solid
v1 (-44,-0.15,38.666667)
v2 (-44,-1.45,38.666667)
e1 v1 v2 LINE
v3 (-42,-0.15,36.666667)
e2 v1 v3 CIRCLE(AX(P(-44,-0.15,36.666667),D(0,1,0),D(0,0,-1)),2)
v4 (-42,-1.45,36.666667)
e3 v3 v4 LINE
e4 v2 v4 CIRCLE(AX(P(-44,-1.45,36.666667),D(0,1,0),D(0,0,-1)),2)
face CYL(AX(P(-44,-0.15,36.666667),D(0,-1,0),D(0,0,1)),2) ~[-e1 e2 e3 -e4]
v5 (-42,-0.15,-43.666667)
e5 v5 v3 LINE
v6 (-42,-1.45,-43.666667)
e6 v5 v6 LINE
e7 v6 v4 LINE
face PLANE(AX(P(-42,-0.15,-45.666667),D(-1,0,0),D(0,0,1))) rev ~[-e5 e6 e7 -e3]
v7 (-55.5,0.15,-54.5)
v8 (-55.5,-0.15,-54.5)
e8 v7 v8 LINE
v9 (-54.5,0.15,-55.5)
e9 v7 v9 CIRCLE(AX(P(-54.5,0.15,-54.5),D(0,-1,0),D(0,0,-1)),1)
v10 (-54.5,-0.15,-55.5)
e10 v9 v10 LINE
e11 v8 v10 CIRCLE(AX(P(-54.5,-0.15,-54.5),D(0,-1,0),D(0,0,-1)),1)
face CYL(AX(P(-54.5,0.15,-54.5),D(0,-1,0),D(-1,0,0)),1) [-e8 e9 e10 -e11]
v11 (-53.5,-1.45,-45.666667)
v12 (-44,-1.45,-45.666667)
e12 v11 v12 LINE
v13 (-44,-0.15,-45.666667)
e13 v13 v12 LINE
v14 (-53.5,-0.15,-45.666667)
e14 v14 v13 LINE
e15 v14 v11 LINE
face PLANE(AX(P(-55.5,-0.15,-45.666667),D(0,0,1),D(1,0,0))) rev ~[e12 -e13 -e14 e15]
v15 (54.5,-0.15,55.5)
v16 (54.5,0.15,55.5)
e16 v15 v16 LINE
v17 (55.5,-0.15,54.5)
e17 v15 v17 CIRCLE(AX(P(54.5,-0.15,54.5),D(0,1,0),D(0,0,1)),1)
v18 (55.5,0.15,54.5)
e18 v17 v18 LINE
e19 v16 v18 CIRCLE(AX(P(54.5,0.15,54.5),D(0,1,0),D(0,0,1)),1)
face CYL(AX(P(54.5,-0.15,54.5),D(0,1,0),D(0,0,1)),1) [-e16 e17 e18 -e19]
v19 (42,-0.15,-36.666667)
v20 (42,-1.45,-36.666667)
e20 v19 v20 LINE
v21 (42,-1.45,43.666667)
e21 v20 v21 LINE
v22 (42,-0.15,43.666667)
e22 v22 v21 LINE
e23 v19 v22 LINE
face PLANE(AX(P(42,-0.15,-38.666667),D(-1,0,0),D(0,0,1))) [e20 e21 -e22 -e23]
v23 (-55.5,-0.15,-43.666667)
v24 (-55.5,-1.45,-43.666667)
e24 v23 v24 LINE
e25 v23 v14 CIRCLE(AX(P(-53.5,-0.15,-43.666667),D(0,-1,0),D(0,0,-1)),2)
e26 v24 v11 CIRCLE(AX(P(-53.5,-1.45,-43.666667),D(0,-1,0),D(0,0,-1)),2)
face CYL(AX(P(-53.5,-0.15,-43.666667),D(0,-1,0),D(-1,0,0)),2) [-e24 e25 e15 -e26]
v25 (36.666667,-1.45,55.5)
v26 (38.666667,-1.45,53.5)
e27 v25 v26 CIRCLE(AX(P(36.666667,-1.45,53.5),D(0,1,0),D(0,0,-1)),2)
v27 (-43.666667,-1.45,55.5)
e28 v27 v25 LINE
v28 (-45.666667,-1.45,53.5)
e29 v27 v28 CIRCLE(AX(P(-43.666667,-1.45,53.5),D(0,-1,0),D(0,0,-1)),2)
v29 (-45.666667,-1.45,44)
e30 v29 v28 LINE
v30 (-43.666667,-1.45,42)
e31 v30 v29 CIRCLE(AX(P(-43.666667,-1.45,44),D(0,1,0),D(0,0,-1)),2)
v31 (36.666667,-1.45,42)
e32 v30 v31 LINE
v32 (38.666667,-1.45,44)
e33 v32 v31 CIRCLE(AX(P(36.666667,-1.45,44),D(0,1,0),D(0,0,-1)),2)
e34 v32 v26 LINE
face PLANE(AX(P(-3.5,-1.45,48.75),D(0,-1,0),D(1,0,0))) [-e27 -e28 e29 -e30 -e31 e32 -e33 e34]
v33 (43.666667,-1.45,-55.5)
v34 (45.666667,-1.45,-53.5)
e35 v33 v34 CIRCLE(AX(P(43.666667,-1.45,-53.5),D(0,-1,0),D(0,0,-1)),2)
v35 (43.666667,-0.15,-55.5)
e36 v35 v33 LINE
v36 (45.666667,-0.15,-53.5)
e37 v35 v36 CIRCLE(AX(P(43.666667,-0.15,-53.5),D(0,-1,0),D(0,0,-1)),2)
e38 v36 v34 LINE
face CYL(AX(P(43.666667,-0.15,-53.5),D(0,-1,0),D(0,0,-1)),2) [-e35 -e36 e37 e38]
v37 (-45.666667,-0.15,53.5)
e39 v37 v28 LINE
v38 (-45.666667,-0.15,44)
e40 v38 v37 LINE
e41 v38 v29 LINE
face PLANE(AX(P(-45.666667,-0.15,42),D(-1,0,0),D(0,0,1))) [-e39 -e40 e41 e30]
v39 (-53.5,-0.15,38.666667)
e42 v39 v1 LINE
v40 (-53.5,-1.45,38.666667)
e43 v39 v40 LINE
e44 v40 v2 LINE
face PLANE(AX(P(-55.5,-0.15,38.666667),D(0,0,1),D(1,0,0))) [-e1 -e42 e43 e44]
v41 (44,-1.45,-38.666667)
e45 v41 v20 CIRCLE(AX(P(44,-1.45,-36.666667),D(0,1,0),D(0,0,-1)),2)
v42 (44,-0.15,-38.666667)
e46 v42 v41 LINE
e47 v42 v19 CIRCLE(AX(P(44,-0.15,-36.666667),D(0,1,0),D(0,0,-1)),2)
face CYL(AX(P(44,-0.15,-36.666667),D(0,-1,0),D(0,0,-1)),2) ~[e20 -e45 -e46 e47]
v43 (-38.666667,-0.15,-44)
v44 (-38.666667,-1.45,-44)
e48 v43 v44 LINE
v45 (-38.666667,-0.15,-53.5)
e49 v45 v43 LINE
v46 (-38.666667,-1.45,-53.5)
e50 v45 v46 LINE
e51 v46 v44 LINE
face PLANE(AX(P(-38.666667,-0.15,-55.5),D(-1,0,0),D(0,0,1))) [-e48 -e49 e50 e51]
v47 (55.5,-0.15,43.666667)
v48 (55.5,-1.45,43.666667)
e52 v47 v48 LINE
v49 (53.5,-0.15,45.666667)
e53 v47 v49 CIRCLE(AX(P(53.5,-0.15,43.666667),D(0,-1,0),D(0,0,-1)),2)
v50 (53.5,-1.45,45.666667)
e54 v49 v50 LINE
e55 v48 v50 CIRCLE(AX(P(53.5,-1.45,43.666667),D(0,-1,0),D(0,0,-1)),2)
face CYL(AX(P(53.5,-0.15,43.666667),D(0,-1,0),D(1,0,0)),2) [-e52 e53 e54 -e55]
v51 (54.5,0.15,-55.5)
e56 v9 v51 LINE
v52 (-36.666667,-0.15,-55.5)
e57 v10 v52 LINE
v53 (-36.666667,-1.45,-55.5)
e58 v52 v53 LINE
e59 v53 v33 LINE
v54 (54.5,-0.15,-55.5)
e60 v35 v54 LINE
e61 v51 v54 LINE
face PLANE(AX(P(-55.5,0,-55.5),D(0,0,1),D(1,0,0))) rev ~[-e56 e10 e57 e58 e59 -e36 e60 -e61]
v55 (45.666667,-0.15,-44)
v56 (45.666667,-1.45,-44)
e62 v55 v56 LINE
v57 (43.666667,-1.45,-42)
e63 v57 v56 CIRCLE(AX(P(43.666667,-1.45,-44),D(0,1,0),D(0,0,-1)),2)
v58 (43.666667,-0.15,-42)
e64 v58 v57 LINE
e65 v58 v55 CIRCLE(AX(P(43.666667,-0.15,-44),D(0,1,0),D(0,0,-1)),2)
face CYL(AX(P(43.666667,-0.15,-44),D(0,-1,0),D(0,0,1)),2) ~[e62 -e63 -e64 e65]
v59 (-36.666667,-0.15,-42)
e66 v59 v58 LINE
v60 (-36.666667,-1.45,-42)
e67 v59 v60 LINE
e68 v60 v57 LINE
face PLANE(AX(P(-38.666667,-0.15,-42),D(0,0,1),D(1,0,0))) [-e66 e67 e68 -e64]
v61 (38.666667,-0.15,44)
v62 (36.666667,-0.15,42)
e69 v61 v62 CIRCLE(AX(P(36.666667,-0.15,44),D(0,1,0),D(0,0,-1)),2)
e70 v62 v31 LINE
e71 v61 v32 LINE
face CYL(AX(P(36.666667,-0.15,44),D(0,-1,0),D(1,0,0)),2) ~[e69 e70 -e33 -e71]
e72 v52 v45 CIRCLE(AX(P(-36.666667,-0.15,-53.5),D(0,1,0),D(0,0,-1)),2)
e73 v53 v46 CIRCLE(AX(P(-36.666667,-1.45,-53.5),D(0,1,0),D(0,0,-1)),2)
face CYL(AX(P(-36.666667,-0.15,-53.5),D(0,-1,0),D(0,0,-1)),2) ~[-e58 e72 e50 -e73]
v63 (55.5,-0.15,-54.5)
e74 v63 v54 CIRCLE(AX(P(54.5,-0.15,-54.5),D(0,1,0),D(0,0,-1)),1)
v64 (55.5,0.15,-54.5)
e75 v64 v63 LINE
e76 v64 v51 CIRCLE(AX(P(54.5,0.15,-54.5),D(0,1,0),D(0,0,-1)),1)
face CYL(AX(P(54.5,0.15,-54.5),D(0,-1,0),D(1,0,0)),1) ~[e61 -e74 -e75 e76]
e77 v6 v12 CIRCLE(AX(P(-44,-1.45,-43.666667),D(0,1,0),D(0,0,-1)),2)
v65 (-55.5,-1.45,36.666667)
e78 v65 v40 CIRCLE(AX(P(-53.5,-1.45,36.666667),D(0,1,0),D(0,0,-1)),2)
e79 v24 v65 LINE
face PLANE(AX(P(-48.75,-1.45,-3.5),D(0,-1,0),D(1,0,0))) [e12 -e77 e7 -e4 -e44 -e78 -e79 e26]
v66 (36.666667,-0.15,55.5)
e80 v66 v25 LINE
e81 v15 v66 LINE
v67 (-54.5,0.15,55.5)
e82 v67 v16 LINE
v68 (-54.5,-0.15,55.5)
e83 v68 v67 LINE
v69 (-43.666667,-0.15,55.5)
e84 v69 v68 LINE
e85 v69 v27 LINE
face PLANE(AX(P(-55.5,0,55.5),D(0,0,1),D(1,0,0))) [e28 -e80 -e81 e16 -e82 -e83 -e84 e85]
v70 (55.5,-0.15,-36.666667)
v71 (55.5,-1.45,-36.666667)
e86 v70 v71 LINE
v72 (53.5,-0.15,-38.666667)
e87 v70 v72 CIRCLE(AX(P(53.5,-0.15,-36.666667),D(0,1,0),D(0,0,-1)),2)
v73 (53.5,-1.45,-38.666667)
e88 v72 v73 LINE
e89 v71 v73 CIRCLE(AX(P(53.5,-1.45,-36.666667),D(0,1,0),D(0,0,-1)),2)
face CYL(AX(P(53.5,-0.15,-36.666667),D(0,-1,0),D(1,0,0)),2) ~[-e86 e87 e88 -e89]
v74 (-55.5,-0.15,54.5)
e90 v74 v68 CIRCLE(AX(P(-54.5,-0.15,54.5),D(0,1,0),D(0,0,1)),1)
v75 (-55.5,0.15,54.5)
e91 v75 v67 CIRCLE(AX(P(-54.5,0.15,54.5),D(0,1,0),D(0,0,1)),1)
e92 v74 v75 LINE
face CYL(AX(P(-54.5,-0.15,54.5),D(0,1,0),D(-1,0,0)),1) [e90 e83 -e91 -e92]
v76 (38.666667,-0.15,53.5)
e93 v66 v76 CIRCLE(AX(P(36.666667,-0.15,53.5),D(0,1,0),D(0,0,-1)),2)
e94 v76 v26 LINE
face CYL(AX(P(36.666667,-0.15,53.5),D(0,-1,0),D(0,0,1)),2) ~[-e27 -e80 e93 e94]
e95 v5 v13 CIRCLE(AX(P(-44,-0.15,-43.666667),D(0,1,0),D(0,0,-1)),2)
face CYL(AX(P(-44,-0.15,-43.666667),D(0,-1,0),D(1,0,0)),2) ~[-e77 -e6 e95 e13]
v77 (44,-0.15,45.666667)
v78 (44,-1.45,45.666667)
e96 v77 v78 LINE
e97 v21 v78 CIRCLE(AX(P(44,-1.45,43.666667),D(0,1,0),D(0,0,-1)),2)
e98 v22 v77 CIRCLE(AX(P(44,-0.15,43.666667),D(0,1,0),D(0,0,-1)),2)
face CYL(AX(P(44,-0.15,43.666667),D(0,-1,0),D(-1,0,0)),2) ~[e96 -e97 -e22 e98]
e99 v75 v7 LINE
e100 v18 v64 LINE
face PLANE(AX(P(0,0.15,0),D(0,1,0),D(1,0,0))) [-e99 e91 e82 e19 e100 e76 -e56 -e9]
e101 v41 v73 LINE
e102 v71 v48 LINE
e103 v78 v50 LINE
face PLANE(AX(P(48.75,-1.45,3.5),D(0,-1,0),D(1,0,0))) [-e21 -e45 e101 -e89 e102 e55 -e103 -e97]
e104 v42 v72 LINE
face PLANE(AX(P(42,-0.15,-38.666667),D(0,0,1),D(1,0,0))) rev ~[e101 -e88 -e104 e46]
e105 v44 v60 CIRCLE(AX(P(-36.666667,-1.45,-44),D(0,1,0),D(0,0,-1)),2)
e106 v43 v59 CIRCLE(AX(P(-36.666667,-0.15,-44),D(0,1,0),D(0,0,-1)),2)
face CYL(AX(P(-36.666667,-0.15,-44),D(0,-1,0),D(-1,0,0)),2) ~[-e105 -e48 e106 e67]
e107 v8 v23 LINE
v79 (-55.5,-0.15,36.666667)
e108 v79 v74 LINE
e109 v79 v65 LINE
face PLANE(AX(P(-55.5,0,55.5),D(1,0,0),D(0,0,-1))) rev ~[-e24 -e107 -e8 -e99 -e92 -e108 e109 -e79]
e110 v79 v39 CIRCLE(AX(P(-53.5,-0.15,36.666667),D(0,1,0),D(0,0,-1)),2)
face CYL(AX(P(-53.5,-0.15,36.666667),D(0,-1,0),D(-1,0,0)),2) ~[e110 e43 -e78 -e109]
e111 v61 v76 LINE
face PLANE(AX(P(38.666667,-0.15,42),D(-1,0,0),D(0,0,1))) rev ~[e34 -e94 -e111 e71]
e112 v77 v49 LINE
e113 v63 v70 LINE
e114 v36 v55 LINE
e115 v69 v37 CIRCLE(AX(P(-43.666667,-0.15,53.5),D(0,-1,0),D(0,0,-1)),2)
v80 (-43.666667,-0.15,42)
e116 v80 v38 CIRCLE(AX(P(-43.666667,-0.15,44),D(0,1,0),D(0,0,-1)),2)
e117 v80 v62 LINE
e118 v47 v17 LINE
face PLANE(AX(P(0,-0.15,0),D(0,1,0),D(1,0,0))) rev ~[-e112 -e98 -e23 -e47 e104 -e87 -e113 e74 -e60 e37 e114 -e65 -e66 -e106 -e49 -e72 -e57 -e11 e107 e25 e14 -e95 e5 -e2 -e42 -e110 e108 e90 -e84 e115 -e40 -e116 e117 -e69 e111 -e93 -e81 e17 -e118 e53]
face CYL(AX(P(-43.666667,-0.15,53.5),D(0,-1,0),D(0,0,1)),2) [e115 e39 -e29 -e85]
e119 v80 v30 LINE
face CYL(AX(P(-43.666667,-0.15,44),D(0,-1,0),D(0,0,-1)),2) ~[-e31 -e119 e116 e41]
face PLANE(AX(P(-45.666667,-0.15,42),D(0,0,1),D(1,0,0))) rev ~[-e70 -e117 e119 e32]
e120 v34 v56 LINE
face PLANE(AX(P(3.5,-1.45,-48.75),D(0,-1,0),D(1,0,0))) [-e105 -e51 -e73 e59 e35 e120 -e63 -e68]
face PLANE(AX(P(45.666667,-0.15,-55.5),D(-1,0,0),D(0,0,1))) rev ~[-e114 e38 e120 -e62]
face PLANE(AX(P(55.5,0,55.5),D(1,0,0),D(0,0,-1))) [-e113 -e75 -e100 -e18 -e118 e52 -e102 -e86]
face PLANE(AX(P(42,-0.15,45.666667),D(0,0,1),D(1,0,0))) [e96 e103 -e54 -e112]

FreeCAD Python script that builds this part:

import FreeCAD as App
import Part
import Sketcher

V = App.Vector
Q = App.Units.Quantity


def edges_at(feature, points):
    """Names of the edges that pass closest to the given points."""
    edges = feature.Shape.Edges
    near = lambda p: min(range(len(edges)), key=lambda i: edges[i].distToShape(Part.Vertex(*p))[0])
    return sorted({f"Edge{near(p) + 1}" for p in points})

doc = App.newDocument("Part")
body = doc.addObject("PartDesign::Body", "Body")

sketch1 = body.newObject("Sketcher::SketchObject", "Sketch")
sketch1.AttachmentSupport = (doc.getObject("XZ_Plane"), [""])
sketch1.MapMode = "FlatFace"
sketch1.addGeometry([
    Part.LineSegment(V(-56, -56, 0), V(-56, 56, 0)),
    Part.LineSegment(V(-56, 56, 0), V(56, 56, 0)),
    Part.LineSegment(V(56, 56, 0), V(56, -56, 0)),
    Part.LineSegment(V(56, -56, 0), V(-56, -56, 0)),
], False)
sketch1.addConstraint([
    Sketcher.Constraint("Coincident", 0, 2, 1, 1),
    Sketcher.Constraint("Coincident", 1, 2, 2, 1),
    Sketcher.Constraint("Coincident", 2, 2, 3, 1),
    Sketcher.Constraint("Coincident", 3, 2, 0, 1),
    Sketcher.Constraint("Vertical", 0),
    Sketcher.Constraint("Horizontal", 1),
    Sketcher.Constraint("Vertical", 2),
    Sketcher.Constraint("Horizontal", 3),
    Sketcher.Constraint("Symmetric", 0, 2, 2, 2, -1, 1),
    Sketcher.Constraint("Equal", 3, 0),
    Sketcher.Constraint("DistanceX", 1, 1, 1, 2, Q("111 mm")),
])
pad1 = body.newObject("PartDesign::Pad", "Pad")
pad1.Profile = sketch1
pad1.Length = 0.3
pad1.Midplane = True

sketch2 = body.newObject("Sketcher::SketchObject", "Sketch001")
sketch2.AttachmentSupport = (doc.getObject("XZ_Plane"), [""])
sketch2.MapMode = "FlatFace"
sketch2.AttachmentOffset = App.Placement(V(0, 0, 0.15), App.Rotation())
sketch2.addGeometry([
    Part.LineSegment(V(-56, 39, 0), V(-56, -46, 0)),
    Part.LineSegment(V(-56, -46, 0), V(-42, -46, 0)),
    Part.LineSegment(V(-42, -46, 0), V(-42, 39, 0)),
    Part.LineSegment(V(-42, 39, 0), V(-56, 39, 0)),
    Part.LineSegment(V(-39, -42, 0), V(-39, -56, 0)),
    Part.LineSegment(V(-39, -56, 0), V(46, -56, 0)),
    Part.LineSegment(V(46, -56, 0), V(46, -42, 0)),
    Part.LineSegment(V(46, -42, 0), V(-39, -42, 0)),
    Part.LineSegment(V(-46, 56, 0), V(-46, 42, 0)),
    Part.LineSegment(V(-46, 42, 0), V(39, 42, 0)),
    Part.LineSegment(V(39, 42, 0), V(39, 56, 0)),
    Part.LineSegment(V(39, 56, 0), V(-46, 56, 0)),
    Part.LineSegment(V(42, 46, 0), V(42, -39, 0)),
    Part.LineSegment(V(42, -39, 0), V(56, -39, 0)),
    Part.LineSegment(V(56, -39, 0), V(56, 46, 0)),
    Part.LineSegment(V(56, 46, 0), V(42, 46, 0)),
], False)
sketch2.addConstraint([
    Sketcher.Constraint("Coincident", 0, 2, 1, 1),
    Sketcher.Constraint("Coincident", 1, 2, 2, 1),
    Sketcher.Constraint("Coincident", 2, 2, 3, 1),
    Sketcher.Constraint("Coincident", 3, 2, 0, 1),
    Sketcher.Constraint("Coincident", 4, 2, 5, 1),
    Sketcher.Constraint("Coincident", 5, 2, 6, 1),
    Sketcher.Constraint("Coincident", 6, 2, 7, 1),
    Sketcher.Constraint("Coincident", 7, 2, 4, 1),
    Sketcher.Constraint("Coincident", 8, 2, 9, 1),
    Sketcher.Constraint("Coincident", 9, 2, 10, 1),
    Sketcher.Constraint("Coincident", 10, 2, 11, 1),
    Sketcher.Constraint("Coincident", 11, 2, 8, 1),
    Sketcher.Constraint("Coincident", 12, 2, 13, 1),
    Sketcher.Constraint("Coincident", 13, 2, 14, 1),
    Sketcher.Constraint("Coincident", 14, 2, 15, 1),
    Sketcher.Constraint("Coincident", 15, 2, 12, 1),
    Sketcher.Constraint("Vertical", 0),
    Sketcher.Constraint("Horizontal", 1),
    Sketcher.Constraint("Vertical", 2),
    Sketcher.Constraint("Horizontal", 3),
    Sketcher.Constraint("Vertical", 4),
    Sketcher.Constraint("Horizontal", 5),
    Sketcher.Constraint("Vertical", 6),
    Sketcher.Constraint("Horizontal", 7),
    Sketcher.Constraint("Vertical", 8),
    Sketcher.Constraint("Horizontal", 9),
    Sketcher.Constraint("Vertical", 10),
    Sketcher.Constraint("Horizontal", 11),
    Sketcher.Constraint("Vertical", 12),
    Sketcher.Constraint("Horizontal", 13),
    Sketcher.Constraint("Vertical", 14),
    Sketcher.Constraint("Horizontal", 15),
    Sketcher.Constraint("Symmetric", 6, 2, 8, 2, -1, 1),
    Sketcher.Constraint("Symmetric", 4, 2, 10, 2, -1, 1),
    Sketcher.Constraint("Symmetric", 2, 2, 12, 2, -1, 1),
    Sketcher.Constraint("Symmetric", 0, 2, 14, 2, -1, 1),
    Sketcher.Constraint("Equal", 11, 0),
    Sketcher.Constraint("Equal", 15, 4),
    Sketcher.Constraint("DistanceX", 1, 1, 1, 2, Q("13.5 mm")),
    Sketcher.Constraint("DistanceX", 1, 2, -1, 1, Q("42 mm")),
    Sketcher.Constraint("DistanceY", 6, 2, -1, 1, Q("42 mm")),
    Sketcher.Constraint("DistanceX", 8, 2, 7, 2, Q("7 mm")),
    Sketcher.Constraint("DistanceY", 2, 2, 15, 2, Q("7 mm")),
    Sketcher.Constraint("DistanceX", 5, 1, 5, 2, Q("84.333333 mm")),
])
pad2 = body.newObject("PartDesign::Pad", "Pad001")
pad2.Profile = sketch2
pad2.Length = 1.3
doc.recompute()

fillet = body.newObject("PartDesign::Fillet", "Fillet")
fillet.Base = (pad2, edges_at(pad2, [
    (45.667, -0.8, -55.5),
    (45.667, -0.8, -42),
    (-38.667, -0.8, -42),
    (-38.667, -0.8, -55.5),
    (-42, -0.8, -45.667),
    (-42, -0.8, 38.667),
    (-55.5, -0.8, 38.667),
    (-55.5, -0.8, -45.667),
    (-45.667, -0.8, 42),
    (38.667, -0.8, 42),
    (38.667, -0.8, 55.5),
    (-45.667, -0.8, 55.5),
    (42, -0.8, 45.667),
    (42, -0.8, -38.667),
    (55.5, -0.8, -38.667),
    (55.5, -0.8, 45.667),
]))
fillet.Radius = 2
doc.recompute()

fillet2 = body.newObject("PartDesign::Fillet", "Fillet001")
fillet2.Base = (fillet, edges_at(fillet, [
    (55.5, 0, 55.5),
    (-55.5, 0, 55.5),
    (-55.5, 0, -55.5),
    (55.5, 0, -55.5),
]))
fillet2.Radius = 1

doc.recompute()
